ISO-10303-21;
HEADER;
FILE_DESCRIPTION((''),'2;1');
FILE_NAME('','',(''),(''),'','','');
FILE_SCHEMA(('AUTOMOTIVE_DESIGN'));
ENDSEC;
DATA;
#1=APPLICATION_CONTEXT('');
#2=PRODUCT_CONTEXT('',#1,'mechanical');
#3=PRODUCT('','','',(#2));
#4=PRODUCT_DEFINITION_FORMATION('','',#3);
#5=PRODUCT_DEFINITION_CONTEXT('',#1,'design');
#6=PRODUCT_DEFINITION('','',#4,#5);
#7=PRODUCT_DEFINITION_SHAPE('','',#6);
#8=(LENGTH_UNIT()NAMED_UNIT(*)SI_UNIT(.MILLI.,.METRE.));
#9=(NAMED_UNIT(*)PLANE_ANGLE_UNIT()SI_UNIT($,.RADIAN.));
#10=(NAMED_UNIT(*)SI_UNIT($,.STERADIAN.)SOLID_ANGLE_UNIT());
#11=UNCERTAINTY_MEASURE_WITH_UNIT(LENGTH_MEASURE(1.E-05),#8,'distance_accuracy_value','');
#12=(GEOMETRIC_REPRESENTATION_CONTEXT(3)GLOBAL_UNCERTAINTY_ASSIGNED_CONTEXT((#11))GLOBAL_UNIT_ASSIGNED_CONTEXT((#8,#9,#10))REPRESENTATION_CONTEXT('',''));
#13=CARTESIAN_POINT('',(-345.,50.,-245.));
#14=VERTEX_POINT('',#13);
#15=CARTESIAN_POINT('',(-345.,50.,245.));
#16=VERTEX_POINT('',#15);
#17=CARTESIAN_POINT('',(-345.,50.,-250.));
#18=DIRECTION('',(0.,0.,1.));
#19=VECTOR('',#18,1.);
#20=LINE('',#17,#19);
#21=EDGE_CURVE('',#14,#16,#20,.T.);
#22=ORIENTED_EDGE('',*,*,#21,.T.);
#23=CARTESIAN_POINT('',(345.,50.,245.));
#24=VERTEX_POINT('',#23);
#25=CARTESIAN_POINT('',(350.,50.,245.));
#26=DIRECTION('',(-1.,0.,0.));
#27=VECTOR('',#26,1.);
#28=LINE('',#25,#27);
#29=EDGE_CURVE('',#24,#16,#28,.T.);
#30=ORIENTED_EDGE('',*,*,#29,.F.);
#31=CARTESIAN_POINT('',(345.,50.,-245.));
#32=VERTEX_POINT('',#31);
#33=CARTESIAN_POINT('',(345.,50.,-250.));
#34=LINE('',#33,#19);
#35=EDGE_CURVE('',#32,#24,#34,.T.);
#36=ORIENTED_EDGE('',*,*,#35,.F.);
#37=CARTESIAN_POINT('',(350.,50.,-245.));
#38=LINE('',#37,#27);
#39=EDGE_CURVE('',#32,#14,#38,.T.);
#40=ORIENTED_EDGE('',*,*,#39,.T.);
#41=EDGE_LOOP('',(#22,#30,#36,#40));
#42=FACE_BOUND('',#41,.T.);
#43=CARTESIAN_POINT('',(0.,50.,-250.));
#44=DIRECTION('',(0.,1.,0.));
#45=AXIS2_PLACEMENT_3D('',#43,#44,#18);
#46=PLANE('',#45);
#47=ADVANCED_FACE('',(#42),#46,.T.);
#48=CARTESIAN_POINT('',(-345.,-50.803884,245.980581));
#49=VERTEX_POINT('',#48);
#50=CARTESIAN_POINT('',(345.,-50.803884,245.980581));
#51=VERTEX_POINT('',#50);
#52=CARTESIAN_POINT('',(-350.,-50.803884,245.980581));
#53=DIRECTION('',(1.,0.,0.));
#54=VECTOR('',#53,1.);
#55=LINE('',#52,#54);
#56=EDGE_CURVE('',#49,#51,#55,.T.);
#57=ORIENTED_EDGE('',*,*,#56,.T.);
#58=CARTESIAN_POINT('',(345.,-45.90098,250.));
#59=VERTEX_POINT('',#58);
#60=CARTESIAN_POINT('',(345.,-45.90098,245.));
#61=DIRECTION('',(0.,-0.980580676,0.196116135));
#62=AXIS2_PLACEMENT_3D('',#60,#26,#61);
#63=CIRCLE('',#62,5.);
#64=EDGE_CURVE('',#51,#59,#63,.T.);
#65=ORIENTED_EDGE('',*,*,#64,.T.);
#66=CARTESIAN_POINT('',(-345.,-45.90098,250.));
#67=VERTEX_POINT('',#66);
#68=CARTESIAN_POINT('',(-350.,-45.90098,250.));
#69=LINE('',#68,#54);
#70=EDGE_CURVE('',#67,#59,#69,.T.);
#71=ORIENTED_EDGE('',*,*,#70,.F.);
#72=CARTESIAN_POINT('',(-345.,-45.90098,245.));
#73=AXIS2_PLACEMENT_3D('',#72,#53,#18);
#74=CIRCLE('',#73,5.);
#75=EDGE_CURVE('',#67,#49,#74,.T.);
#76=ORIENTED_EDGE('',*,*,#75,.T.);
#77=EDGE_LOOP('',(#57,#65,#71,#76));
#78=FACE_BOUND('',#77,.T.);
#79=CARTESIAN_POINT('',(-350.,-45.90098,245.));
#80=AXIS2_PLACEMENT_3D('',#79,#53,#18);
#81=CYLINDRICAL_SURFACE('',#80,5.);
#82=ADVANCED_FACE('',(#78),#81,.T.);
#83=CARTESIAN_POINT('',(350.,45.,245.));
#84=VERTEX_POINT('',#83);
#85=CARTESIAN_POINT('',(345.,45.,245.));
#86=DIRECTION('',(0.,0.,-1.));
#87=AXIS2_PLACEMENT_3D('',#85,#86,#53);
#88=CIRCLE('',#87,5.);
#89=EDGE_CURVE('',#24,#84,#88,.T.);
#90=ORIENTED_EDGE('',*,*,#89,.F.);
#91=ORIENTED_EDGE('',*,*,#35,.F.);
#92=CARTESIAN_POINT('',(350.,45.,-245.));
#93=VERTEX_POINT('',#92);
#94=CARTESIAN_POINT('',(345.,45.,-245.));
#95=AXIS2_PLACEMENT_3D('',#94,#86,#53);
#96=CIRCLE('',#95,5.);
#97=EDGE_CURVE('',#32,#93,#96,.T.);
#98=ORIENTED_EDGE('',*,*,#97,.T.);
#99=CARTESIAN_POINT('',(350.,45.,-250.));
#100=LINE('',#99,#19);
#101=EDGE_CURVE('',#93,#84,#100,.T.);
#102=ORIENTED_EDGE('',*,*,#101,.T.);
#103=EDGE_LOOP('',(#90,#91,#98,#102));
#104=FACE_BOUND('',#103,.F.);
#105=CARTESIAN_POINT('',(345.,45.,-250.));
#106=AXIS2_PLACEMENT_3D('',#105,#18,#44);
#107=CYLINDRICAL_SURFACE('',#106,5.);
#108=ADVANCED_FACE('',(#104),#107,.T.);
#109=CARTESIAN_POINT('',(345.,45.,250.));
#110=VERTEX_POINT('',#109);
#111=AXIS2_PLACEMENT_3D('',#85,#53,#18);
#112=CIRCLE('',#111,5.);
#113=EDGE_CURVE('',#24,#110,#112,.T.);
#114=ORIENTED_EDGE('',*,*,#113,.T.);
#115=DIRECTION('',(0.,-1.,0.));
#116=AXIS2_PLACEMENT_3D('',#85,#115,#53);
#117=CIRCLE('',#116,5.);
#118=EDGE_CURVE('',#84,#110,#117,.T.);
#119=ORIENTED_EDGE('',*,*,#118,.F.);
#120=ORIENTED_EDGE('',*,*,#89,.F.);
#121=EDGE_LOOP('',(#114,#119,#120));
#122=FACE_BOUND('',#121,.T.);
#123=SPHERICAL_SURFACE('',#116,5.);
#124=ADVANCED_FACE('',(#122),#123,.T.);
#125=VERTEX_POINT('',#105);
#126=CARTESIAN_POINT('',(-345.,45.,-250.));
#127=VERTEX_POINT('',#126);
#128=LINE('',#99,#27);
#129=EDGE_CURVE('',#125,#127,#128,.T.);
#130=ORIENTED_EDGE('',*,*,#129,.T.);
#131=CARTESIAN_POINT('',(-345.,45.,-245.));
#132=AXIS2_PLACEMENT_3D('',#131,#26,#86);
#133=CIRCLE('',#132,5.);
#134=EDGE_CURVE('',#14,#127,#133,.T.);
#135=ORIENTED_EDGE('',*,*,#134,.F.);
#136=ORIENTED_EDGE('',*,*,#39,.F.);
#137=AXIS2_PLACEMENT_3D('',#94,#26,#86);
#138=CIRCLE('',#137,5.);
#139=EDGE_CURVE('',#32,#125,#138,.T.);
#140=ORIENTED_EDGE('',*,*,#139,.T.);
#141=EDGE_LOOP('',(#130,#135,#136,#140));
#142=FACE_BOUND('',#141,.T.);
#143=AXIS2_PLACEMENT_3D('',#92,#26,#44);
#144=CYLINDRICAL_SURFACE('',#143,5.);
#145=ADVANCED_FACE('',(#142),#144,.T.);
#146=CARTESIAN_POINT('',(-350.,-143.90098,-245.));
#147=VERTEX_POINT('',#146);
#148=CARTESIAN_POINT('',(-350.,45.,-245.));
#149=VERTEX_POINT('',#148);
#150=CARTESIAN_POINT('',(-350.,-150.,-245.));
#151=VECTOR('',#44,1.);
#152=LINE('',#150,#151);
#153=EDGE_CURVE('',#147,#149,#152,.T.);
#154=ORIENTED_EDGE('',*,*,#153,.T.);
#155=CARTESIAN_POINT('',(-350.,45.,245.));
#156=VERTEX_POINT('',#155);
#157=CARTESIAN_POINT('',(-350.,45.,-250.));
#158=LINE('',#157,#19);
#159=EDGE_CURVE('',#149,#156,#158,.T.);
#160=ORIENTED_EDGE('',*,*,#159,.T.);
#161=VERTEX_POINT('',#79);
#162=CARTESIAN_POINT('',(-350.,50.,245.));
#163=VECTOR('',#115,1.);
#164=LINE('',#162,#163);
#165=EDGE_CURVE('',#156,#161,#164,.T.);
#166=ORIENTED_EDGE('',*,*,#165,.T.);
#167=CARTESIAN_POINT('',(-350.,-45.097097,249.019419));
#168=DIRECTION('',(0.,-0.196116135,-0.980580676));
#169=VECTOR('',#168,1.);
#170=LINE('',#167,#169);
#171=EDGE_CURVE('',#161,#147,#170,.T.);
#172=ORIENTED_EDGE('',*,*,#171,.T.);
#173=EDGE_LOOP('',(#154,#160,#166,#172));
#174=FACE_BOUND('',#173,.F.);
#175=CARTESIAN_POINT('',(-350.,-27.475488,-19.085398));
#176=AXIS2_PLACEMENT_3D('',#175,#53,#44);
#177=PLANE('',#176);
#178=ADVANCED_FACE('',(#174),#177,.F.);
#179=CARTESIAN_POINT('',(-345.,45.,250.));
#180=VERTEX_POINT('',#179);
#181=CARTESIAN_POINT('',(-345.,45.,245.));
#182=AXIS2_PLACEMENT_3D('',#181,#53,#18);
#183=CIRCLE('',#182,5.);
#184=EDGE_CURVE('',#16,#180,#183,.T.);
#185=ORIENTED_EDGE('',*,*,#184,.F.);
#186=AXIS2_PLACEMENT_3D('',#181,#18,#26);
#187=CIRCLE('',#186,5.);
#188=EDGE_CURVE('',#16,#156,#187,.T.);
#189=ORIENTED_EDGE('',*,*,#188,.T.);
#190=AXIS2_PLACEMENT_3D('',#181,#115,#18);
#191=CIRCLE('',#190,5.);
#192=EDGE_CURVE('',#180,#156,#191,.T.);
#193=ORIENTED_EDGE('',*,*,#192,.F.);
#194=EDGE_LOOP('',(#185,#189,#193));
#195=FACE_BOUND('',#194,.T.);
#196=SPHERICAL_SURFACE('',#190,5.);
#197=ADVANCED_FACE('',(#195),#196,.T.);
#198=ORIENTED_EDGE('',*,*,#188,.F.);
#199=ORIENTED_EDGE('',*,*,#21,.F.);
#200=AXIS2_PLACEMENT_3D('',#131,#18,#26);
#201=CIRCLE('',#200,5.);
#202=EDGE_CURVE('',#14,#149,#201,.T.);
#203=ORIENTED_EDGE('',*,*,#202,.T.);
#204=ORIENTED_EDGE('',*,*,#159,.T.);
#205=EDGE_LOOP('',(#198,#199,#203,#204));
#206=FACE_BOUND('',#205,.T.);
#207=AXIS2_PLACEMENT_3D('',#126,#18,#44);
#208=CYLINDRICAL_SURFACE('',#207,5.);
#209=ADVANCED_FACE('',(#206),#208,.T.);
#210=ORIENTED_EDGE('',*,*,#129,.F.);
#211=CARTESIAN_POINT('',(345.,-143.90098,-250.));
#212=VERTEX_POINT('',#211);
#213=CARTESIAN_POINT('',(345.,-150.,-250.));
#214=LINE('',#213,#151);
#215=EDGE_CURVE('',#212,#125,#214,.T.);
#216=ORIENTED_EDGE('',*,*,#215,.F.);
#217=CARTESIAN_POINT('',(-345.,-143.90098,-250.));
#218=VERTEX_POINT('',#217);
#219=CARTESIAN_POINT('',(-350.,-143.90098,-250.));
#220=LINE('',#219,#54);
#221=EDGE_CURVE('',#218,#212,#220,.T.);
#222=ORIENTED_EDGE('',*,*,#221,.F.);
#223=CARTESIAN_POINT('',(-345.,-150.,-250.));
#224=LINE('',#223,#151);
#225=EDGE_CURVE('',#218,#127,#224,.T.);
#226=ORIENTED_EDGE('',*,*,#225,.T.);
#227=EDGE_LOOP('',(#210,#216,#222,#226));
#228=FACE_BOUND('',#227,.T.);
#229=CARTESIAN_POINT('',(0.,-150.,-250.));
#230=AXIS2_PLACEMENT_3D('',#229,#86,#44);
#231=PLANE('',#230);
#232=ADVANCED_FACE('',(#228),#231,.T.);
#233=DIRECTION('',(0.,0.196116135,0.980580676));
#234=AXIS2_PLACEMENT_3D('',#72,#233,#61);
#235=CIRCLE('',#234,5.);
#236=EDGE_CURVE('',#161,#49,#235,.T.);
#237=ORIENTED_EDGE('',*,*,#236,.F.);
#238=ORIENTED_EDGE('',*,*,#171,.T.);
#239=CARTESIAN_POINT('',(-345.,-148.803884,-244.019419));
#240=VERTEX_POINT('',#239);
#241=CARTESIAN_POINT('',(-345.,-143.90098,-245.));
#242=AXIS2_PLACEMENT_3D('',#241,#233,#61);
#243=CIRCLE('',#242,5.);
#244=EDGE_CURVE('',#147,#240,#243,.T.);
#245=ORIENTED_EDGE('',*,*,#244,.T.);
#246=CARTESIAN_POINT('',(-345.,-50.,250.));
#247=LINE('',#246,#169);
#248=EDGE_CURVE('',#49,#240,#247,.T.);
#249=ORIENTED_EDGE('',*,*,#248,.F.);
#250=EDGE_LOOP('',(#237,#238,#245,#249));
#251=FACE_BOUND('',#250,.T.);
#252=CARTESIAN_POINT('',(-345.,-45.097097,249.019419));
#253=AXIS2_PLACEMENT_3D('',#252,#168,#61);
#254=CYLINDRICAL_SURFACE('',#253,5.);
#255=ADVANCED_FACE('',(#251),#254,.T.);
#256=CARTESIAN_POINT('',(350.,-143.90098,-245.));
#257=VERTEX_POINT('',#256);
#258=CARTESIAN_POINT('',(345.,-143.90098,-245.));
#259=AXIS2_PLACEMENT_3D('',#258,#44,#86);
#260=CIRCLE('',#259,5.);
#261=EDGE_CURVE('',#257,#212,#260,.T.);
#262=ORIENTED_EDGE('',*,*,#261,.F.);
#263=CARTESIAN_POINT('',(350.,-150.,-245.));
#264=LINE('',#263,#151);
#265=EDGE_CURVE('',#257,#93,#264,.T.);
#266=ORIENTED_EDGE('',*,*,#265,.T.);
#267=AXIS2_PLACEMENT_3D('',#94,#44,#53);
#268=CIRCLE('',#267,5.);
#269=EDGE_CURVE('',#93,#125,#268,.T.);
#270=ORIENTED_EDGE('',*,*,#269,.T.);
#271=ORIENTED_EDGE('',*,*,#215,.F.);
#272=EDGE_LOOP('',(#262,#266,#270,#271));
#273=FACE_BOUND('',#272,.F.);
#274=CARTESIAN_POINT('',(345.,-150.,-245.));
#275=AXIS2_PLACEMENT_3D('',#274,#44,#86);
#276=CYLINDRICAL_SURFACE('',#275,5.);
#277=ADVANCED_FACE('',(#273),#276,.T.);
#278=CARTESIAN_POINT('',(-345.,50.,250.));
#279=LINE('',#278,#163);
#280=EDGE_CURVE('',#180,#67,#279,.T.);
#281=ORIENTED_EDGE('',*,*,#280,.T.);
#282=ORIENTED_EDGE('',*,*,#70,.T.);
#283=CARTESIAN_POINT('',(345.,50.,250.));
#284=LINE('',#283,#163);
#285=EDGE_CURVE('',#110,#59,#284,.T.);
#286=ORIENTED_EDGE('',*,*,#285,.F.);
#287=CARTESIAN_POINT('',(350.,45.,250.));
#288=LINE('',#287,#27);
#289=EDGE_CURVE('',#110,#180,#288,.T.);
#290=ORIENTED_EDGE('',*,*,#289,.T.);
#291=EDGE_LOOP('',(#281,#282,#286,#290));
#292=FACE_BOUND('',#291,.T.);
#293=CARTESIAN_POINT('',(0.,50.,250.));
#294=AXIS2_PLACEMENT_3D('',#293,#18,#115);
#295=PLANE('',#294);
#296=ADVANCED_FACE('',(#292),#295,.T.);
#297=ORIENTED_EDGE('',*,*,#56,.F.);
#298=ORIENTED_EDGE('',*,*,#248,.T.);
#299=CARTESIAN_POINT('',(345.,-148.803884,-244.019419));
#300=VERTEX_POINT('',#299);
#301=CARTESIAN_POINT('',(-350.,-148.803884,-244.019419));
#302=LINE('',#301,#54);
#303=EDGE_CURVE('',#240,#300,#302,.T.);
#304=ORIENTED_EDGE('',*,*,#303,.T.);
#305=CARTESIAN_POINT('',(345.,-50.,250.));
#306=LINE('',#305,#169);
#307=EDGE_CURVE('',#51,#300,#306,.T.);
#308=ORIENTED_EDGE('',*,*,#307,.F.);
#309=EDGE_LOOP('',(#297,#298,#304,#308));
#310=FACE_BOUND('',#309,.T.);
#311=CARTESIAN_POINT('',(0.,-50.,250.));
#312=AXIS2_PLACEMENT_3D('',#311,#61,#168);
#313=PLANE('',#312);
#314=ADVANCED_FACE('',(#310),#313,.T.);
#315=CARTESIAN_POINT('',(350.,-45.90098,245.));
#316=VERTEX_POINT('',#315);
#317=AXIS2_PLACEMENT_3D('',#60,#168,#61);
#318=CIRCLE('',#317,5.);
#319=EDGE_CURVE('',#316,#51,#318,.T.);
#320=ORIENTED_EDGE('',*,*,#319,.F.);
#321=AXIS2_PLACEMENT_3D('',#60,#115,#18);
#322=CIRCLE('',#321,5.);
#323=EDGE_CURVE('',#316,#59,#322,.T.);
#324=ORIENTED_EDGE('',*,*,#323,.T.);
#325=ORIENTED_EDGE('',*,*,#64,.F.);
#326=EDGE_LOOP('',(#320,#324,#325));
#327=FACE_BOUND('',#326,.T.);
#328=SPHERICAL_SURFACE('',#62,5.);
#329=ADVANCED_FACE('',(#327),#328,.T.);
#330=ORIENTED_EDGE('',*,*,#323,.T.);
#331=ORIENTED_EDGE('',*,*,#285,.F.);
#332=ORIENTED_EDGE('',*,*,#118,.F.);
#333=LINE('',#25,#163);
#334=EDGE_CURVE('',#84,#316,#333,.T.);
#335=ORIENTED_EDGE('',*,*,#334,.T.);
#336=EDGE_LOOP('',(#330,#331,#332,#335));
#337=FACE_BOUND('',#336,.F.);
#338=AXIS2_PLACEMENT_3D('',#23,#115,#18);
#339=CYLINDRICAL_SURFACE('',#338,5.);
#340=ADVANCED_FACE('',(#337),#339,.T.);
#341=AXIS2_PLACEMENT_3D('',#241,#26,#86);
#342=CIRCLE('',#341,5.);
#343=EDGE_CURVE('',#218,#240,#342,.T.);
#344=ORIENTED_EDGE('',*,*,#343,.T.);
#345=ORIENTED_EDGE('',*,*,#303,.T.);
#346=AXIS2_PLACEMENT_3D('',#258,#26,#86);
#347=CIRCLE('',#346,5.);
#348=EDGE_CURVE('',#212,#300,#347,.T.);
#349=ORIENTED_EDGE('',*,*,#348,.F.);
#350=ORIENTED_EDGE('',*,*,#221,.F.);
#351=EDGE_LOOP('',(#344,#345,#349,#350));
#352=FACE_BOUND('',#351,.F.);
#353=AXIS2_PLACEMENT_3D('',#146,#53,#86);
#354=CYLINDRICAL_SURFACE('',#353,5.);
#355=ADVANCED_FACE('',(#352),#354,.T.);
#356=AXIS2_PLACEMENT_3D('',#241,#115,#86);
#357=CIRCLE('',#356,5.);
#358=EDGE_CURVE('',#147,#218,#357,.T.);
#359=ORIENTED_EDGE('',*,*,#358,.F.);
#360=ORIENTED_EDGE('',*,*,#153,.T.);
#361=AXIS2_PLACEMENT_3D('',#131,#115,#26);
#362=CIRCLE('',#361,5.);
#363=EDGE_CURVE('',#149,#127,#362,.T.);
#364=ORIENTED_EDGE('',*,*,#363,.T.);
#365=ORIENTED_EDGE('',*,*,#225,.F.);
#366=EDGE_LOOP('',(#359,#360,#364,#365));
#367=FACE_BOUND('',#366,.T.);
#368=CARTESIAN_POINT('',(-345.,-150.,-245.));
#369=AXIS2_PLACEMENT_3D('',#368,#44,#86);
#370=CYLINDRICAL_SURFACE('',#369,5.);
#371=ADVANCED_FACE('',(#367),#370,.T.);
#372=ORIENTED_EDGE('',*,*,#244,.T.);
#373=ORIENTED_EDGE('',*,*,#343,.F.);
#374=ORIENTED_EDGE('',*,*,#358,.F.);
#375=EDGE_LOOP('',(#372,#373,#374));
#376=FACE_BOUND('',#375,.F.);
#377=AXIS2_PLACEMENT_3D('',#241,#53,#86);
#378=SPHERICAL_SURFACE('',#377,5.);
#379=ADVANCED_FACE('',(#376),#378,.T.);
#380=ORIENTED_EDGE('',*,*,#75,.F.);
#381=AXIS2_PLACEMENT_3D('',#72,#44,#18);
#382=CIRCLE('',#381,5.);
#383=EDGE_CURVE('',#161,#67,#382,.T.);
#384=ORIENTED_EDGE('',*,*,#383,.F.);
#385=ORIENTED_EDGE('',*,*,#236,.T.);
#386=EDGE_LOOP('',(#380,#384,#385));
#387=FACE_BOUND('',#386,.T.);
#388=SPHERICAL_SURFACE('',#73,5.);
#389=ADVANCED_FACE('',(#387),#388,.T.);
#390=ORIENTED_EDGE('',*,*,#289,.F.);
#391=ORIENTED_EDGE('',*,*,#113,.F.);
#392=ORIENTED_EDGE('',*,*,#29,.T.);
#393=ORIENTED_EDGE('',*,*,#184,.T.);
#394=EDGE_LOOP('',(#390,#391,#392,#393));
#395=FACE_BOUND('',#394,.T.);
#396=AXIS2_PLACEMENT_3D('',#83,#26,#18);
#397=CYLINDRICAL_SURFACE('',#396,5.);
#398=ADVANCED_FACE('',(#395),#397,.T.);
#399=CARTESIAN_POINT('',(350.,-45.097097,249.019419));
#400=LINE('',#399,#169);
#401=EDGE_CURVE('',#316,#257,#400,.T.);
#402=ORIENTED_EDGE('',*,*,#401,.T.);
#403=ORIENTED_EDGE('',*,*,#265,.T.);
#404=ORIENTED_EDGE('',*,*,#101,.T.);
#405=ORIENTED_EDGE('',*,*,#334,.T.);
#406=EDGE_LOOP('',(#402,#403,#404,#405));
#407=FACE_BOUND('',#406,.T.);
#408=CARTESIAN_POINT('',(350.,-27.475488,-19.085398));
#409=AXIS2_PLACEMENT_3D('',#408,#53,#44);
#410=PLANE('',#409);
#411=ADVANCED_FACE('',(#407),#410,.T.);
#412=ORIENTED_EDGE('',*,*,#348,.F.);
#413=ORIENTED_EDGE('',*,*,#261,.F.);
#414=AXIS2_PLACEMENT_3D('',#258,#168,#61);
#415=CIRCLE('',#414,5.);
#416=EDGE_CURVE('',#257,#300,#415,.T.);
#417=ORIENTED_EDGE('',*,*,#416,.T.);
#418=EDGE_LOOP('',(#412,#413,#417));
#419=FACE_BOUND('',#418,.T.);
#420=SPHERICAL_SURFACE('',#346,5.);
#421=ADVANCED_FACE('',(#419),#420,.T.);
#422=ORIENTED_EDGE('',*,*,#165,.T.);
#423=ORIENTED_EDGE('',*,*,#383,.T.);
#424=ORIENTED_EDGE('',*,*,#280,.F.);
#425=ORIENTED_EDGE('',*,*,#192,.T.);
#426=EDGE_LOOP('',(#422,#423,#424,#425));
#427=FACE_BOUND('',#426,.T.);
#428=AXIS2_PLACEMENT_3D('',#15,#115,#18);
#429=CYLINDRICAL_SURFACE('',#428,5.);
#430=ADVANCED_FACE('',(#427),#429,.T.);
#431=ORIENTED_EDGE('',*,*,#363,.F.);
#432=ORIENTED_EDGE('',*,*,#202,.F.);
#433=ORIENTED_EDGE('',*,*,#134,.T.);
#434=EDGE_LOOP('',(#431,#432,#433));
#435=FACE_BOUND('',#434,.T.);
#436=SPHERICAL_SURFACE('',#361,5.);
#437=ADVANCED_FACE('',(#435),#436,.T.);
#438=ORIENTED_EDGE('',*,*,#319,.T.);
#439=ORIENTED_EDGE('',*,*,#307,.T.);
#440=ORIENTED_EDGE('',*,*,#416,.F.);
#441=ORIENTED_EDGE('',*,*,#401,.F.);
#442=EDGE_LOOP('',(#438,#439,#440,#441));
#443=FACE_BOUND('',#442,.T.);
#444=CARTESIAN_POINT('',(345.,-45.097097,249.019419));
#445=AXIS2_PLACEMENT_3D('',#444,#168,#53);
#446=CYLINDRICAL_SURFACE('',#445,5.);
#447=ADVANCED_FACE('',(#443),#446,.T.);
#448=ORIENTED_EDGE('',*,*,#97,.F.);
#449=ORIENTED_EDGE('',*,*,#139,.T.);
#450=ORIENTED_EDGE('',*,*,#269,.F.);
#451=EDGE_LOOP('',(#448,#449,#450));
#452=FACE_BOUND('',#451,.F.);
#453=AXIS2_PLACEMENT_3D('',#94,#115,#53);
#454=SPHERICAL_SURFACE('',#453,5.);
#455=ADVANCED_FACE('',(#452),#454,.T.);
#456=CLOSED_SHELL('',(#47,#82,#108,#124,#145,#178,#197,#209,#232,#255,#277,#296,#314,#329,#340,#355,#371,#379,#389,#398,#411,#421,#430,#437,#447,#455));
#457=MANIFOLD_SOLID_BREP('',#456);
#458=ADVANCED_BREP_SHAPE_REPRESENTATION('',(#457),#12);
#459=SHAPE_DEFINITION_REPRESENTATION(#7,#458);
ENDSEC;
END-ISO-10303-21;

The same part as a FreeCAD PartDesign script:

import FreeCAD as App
import Part
import Sketcher
Q = App.Units.Quantity

doc = App.newDocument("Part")
body = doc.addObject("PartDesign::Body", "Body")

# Sketch on YZ plane
sketch1 = body.newObject("Sketcher::SketchObject", "Sketch")
sketch1.AttachmentSupport = (doc.getObject("YZ_Plane"), [""])
sketch1.MapMode = "FlatFace"
sketch1.addGeometry([
    Part.LineSegment(App.Vector(50, 250, 0), App.Vector(-50, 250, 0)),
    Part.LineSegment(App.Vector(-50, 250, 0), App.Vector(-150, -250, 0)),
    Part.LineSegment(App.Vector(-150, -250, 0), App.Vector(50, -250, 0)),
    Part.LineSegment(App.Vector(50, -250, 0), App.Vector(50, 250, 0)),
], False)
sketch1.addConstraint([
    Sketcher.Constraint("Coincident", 0, 2, 1, 1),
    Sketcher.Constraint("Coincident", 1, 2, 2, 1),
    Sketcher.Constraint("Coincident", 2, 2, 3, 1),
    Sketcher.Constraint("Coincident", 3, 2, 0, 1),
    Sketcher.Constraint("Horizontal", 0),
    Sketcher.Constraint("Horizontal", 2),
    Sketcher.Constraint("Vertical", 3),
    Sketcher.Constraint("Symmetric", 0, 2, 2, 2, -1, 1),
    Sketcher.Constraint("DistanceX", 0, 2, 0, 1, Q("100 mm")),
    Sketcher.Constraint("DistanceX", 2, 1, 2, 2, Q("200 mm")),
    Sketcher.Constraint("DistanceY", 3, 1, 3, 2, Q("500 mm")),
])
pad1 = body.newObject("PartDesign::Pad", "Pad")
pad1.Profile = sketch1
pad1.Length = 700
pad1.Midplane = True
doc.recompute()

fillet = body.newObject("PartDesign::Fillet", "Fillet")
fillet.Base = (pad1, ["Edge1"])
fillet.UseAllEdges = True
fillet.Radius = 5

doc.recompute()
